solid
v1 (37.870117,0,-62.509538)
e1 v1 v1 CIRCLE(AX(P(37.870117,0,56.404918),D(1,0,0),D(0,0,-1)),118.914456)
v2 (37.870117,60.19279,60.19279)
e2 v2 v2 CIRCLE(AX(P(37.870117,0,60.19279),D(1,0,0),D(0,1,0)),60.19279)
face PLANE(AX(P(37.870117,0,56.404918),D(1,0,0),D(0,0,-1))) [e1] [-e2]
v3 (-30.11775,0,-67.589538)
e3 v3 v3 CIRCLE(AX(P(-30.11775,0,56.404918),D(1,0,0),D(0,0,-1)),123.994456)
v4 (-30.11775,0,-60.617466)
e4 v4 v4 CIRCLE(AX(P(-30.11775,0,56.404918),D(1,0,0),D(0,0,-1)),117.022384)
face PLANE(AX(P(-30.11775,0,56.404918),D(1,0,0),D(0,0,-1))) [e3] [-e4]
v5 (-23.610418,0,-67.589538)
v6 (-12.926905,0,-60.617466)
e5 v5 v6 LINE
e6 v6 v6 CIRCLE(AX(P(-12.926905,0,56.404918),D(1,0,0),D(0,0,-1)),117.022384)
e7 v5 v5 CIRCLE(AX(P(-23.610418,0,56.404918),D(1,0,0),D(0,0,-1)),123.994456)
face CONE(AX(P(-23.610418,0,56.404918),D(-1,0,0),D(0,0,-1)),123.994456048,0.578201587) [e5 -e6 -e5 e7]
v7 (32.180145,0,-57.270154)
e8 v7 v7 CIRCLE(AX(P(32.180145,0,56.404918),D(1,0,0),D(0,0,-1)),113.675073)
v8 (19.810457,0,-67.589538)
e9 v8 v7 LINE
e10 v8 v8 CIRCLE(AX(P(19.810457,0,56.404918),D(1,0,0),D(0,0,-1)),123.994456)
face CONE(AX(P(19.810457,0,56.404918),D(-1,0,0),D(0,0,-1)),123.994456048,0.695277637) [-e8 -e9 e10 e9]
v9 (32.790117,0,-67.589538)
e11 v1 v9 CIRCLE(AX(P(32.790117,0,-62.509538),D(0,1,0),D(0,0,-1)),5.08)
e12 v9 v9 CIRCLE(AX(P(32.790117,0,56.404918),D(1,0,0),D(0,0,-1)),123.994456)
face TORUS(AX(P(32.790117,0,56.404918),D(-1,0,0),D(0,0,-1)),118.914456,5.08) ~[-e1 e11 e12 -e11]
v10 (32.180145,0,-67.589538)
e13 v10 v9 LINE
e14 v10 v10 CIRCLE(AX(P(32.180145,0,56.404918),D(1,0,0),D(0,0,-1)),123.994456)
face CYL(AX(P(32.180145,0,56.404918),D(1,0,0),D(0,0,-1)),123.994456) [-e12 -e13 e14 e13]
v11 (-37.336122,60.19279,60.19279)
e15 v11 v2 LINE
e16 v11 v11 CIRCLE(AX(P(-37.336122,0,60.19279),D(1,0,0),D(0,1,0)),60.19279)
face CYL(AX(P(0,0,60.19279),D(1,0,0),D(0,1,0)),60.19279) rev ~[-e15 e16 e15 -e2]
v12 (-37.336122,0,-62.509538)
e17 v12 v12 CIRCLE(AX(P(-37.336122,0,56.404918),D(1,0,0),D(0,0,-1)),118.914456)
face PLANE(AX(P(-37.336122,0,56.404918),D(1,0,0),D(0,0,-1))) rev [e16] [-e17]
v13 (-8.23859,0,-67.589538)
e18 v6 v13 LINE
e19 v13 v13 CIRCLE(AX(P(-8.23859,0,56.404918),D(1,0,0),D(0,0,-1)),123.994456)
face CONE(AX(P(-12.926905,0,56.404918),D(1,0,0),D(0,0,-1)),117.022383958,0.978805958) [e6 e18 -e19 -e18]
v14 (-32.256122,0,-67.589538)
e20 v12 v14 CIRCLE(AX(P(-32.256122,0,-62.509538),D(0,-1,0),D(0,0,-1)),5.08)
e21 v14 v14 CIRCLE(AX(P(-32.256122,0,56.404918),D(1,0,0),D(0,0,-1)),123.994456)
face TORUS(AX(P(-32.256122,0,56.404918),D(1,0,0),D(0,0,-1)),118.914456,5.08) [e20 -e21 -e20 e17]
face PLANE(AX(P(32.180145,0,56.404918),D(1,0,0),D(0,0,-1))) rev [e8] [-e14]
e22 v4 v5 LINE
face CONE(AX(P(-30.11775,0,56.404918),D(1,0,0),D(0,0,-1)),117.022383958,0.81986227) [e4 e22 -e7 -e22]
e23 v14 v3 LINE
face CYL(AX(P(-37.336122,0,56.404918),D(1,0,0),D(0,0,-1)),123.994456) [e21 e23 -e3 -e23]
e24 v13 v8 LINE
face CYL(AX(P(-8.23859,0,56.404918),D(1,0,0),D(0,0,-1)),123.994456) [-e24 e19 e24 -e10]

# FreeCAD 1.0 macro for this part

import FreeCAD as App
import Part
import Sketcher
from FreeCAD import Vector
Q = App.Units.Quantity


def edges_at(feature, points):
    """Names of the edges that pass closest to the given points."""
    edges = feature.Shape.Edges
    near = lambda p: min(range(len(edges)), key=lambda i: edges[i].distToShape(Part.Vertex(*p))[0])
    return sorted({f"Edge{near(p) + 1}" for p in points})

doc = App.newDocument("Part")
body = doc.addObject("PartDesign::Body", "Body")

# Sketch on XZ plane
sketch1 = body.newObject("Sketcher::SketchObject", "Sketch")
sketch1.AttachmentSupport = (doc.getObject("XZ_Plane"), [""])
sketch1.MapMode = "FlatFace"
sketch1.addGeometry([
    Part.LineSegment(Vector(38, 56, 0), Vector(-37, 56, 0)),  # 0
    Part.LineSegment(Vector(-37, 56, 0), Vector(-37, -68, 0)),  # 1
    Part.LineSegment(Vector(-37, -68, 0), Vector(-30, -68, 0)),  # 2
    Part.LineSegment(Vector(-30, -68, 0), Vector(-30, -61, 0)),  # 3
    Part.LineSegment(Vector(-30, -61, 0), Vector(-24, -68, 0)),  # 4
    Part.LineSegment(Vector(-24, -68, 0), Vector(-13, -61, 0)),  # 5
    Part.LineSegment(Vector(-13, -61, 0), Vector(-8, -68, 0)),  # 6
    Part.LineSegment(Vector(-8, -68, 0), Vector(20, -68, 0)),  # 7
    Part.LineSegment(Vector(20, -68, 0), Vector(32, -57, 0)),  # 8
    Part.LineSegment(Vector(32, -57, 0), Vector(32, -68, 0)),  # 9
    Part.LineSegment(Vector(32, -68, 0), Vector(38, -68, 0)),  # 10
    Part.LineSegment(Vector(38, -68, 0), Vector(38, 56, 0)),  # 11
], False)
sketch1.addGeometry(Part.LineSegment(Vector(-37, 56, 0), Vector(38, 56, 0)), True)  # axis
sketch1.addConstraint([
    Sketcher.Constraint("Coincident", 0, 2, 1, 1),
    Sketcher.Constraint("Coincident", 1, 2, 2, 1),
    Sketcher.Constraint("Coincident", 2, 2, 3, 1),
    Sketcher.Constraint("Coincident", 3, 2, 4, 1),
    Sketcher.Constraint("Coincident", 4, 2, 5, 1),
    Sketcher.Constraint("Coincident", 5, 2, 6, 1),
    Sketcher.Constraint("Coincident", 6, 2, 7, 1),
    Sketcher.Constraint("Coincident", 7, 2, 8, 1),
    Sketcher.Constraint("Coincident", 8, 2, 9, 1),
    Sketcher.Constraint("Coincident", 9, 2, 10, 1),
    Sketcher.Constraint("Coincident", 10, 2, 11, 1),
    Sketcher.Constraint("Coincident", 11, 2, 0, 1),
    Sketcher.Constraint("Horizontal", 0),
    Sketcher.Constraint("Vertical", 1),
    Sketcher.Constraint("Horizontal", 2),
    Sketcher.Constraint("Vertical", 3),
    Sketcher.Constraint("Horizontal", 7),
    Sketcher.Constraint("Vertical", 9),
    Sketcher.Constraint("Horizontal", 10),
    Sketcher.Constraint("Vertical", 11),
    Sketcher.Constraint("Horizontal", 12),
    Sketcher.Constraint("Coincident", 12, 1, 0, 2),
    Sketcher.Constraint("Horizontal", 2, 2, 4, 2),
    Sketcher.Constraint("Horizontal", 3, 2, 5, 2),
    Sketcher.Constraint("Horizontal", 4, 2, 6, 2),
    Sketcher.Constraint("Horizontal", 7, 2, 9, 2),
    Sketcher.Constraint("Vertical", 10, 2, 12, 2),
    Sketcher.Constraint("DistanceX", 0, 2, 0, 1, 75.206239),
    Sketcher.Constraint("DistanceX", 10, 1, 10, 2, 5.689971),
    Sketcher.Constraint("Distance", 4, 9.537042),
    Sketcher.Constraint("Distance", 6, 8.401791),
    Sketcher.Constraint("Distance", 8, 16.108968),
    Sketcher.Constraint("DistanceX", 2, 1, 2, 2, 7.218372),
    Sketcher.Constraint("DistanceX", 7, 1, 7, 2, 28.049047),
    Sketcher.Constraint("DistanceY", 1, 2, 1, 1, 123.994456),
    Sketcher.Constraint("DistanceY", 3, 1, 3, 2, 6.972072),
    Sketcher.Constraint("DistanceY", 9, 2, 9, 1, 10.319383),
    Sketcher.Constraint("DistanceY", -1, 1, 0, 2, 56.404918),
    Sketcher.Constraint("DistanceX", 2, 2, -1, 1, 30.11775),
])
revolution = body.newObject("PartDesign::Revolution", "Revolution")
revolution.Profile = sketch1
revolution.ReferenceAxis = (sketch1, ["Axis0"])
revolution.Angle = 360

# Sketch on YZ plane
sketch2 = body.newObject("Sketcher::SketchObject", "Sketch001")
sketch2.AttachmentSupport = (doc.getObject("YZ_Plane"), [""])
sketch2.MapMode = "FlatFace"
sketch2.addGeometry(Part.Circle(Vector(0, 60, 0), Vector(0, 0, 1), 60), False)
sketch2.addConstraint([
    Sketcher.Constraint("PointOnObject", 0, 3, -2),
    Sketcher.Constraint("Diameter", 0, 120.38558),
    Sketcher.Constraint("DistanceY", -1, 1, 0, 3, 60.19279),
])
pocket1 = body.newObject("PartDesign::Pocket", "Pocket")
pocket1.Profile = sketch2
pocket1.Length = Q("100 in")
pocket1.Midplane = True
doc.recompute()

fillet = body.newObject("PartDesign::Fillet", "Fillet")
fillet.Base = (pocket1, edges_at(pocket1, [(37.87, 0, 180.399), (-37.336, 0, 180.399)]))
fillet.Radius = Q("0.2 in")

doc.recompute()
